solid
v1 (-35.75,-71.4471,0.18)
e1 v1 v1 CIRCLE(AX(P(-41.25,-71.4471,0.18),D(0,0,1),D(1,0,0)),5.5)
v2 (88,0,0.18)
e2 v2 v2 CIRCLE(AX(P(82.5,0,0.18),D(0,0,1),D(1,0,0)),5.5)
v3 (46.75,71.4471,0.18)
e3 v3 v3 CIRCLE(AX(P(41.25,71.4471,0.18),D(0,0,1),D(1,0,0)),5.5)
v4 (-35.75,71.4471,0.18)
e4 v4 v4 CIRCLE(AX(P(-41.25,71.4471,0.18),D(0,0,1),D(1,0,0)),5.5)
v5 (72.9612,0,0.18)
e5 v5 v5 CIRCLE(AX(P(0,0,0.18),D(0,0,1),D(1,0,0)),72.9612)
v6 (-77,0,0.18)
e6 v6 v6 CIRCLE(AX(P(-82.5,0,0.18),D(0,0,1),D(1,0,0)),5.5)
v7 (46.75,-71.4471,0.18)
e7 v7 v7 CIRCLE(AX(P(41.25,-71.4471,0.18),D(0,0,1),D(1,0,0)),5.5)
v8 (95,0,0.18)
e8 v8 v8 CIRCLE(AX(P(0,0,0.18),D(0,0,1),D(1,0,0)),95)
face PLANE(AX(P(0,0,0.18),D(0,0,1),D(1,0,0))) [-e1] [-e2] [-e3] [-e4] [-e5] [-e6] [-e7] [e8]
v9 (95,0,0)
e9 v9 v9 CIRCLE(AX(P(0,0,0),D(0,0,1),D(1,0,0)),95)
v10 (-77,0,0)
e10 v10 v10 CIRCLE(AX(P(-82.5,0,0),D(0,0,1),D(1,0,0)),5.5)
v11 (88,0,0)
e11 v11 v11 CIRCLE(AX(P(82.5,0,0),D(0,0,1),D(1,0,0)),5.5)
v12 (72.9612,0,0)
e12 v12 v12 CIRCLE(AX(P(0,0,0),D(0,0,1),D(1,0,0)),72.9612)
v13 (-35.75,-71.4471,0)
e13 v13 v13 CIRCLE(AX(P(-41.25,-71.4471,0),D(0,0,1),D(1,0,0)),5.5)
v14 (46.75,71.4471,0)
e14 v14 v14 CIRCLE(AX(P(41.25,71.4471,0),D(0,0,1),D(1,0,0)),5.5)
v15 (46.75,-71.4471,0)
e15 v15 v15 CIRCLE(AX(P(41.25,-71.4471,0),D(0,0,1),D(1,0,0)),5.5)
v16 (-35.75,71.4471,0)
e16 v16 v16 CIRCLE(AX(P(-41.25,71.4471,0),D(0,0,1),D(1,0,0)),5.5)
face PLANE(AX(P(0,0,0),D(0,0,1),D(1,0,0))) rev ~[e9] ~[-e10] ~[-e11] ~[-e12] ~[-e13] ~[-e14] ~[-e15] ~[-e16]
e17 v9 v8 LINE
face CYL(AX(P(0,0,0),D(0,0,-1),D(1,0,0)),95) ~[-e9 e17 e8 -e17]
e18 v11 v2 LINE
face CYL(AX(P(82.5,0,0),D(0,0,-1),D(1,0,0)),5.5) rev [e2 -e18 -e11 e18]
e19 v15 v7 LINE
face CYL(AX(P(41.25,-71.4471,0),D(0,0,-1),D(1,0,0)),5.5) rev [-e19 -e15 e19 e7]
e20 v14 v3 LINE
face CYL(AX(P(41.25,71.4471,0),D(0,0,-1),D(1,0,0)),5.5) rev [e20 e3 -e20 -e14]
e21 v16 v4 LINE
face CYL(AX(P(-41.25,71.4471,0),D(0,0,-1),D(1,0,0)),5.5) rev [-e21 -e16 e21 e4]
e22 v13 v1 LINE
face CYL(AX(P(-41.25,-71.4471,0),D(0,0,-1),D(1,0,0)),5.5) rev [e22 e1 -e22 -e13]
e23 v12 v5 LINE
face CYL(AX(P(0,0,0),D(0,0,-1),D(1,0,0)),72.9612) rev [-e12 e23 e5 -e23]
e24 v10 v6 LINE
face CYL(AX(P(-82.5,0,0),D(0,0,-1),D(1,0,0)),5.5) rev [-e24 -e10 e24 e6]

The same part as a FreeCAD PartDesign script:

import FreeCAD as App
import Part
import Sketcher
Q = App.Units.Quantity

doc = App.newDocument("Part")
body = doc.addObject("PartDesign::Body", "Body")

# Sketch on XY plane
sketch1 = body.newObject("Sketcher::SketchObject", "Sketch")
sketch1.AttachmentSupport = (doc.getObject("XY_Plane"), [""])
sketch1.MapMode = "FlatFace"
sketch1.addGeometry([
    Part.Circle(App.Vector(0, 0, 0), App.Vector(0, 0, 1), 95),  # 0
    Part.Circle(App.Vector(-41, -71, 0), App.Vector(0, 0, 1), 6),  # 1
    Part.Circle(App.Vector(41, -71, 0), App.Vector(0, 0, 1), 6),  # 2
    Part.Circle(App.Vector(-82, 0, 0), App.Vector(0, 0, 1), 6),  # 3
    Part.Circle(App.Vector(-41, 71, 0), App.Vector(0, 0, 1), 6),  # 4
    Part.Circle(App.Vector(0, 0, 0), App.Vector(0, 0, 1), 73),  # 5
    Part.Circle(App.Vector(82, 0, 0), App.Vector(0, 0, 1), 6),  # 6
    Part.Circle(App.Vector(41, 71, 0), App.Vector(0, 0, 1), 6),  # 7
], False)
sketch1.addConstraint([
    Sketcher.Constraint("Coincident", 0, 3, -1, 1),
    Sketcher.Constraint("Coincident", 5, 3, -1, 1),
    Sketcher.Constraint("Equal", 1, 2),
    Sketcher.Constraint("Equal", 2, 3),
    Sketcher.Constraint("Equal", 3, 4),
    Sketcher.Constraint("Equal", 4, 6),
    Sketcher.Constraint("Equal", 6, 7),
    Sketcher.Constraint("Symmetric", 2, 3, 4, 3, -1, 1),
    Sketcher.Constraint("Symmetric", 3, 3, 6, 3, -1, 1),
    Sketcher.Constraint("Symmetric", 1, 3, 7, 3, -1, 1),
    Sketcher.Constraint("Symmetric", 1, 3, 2, 3, -2),
    Sketcher.Constraint("PointOnObject", 3, 3, -1),
    Sketcher.Constraint("Diameter", 0, Q("190 mm")),
    Sketcher.Constraint("Diameter", 1, Q("11 mm")),
    Sketcher.Constraint("Diameter", 5, Q("145.9224 mm")),
    Sketcher.Constraint("DistanceX", 3, 3, -1, 1, Q("82.5 mm")),
    Sketcher.Constraint("DistanceX", 1, 3, 2, 3, Q("82.5 mm")),
    Sketcher.Constraint("DistanceY", 1, 3, -1, 1, Q("71.447 mm")),
])
pad1 = body.newObject("PartDesign::Pad", "Pad")
pad1.Profile = sketch1
pad1.Length = 0.18

doc.recompute()
